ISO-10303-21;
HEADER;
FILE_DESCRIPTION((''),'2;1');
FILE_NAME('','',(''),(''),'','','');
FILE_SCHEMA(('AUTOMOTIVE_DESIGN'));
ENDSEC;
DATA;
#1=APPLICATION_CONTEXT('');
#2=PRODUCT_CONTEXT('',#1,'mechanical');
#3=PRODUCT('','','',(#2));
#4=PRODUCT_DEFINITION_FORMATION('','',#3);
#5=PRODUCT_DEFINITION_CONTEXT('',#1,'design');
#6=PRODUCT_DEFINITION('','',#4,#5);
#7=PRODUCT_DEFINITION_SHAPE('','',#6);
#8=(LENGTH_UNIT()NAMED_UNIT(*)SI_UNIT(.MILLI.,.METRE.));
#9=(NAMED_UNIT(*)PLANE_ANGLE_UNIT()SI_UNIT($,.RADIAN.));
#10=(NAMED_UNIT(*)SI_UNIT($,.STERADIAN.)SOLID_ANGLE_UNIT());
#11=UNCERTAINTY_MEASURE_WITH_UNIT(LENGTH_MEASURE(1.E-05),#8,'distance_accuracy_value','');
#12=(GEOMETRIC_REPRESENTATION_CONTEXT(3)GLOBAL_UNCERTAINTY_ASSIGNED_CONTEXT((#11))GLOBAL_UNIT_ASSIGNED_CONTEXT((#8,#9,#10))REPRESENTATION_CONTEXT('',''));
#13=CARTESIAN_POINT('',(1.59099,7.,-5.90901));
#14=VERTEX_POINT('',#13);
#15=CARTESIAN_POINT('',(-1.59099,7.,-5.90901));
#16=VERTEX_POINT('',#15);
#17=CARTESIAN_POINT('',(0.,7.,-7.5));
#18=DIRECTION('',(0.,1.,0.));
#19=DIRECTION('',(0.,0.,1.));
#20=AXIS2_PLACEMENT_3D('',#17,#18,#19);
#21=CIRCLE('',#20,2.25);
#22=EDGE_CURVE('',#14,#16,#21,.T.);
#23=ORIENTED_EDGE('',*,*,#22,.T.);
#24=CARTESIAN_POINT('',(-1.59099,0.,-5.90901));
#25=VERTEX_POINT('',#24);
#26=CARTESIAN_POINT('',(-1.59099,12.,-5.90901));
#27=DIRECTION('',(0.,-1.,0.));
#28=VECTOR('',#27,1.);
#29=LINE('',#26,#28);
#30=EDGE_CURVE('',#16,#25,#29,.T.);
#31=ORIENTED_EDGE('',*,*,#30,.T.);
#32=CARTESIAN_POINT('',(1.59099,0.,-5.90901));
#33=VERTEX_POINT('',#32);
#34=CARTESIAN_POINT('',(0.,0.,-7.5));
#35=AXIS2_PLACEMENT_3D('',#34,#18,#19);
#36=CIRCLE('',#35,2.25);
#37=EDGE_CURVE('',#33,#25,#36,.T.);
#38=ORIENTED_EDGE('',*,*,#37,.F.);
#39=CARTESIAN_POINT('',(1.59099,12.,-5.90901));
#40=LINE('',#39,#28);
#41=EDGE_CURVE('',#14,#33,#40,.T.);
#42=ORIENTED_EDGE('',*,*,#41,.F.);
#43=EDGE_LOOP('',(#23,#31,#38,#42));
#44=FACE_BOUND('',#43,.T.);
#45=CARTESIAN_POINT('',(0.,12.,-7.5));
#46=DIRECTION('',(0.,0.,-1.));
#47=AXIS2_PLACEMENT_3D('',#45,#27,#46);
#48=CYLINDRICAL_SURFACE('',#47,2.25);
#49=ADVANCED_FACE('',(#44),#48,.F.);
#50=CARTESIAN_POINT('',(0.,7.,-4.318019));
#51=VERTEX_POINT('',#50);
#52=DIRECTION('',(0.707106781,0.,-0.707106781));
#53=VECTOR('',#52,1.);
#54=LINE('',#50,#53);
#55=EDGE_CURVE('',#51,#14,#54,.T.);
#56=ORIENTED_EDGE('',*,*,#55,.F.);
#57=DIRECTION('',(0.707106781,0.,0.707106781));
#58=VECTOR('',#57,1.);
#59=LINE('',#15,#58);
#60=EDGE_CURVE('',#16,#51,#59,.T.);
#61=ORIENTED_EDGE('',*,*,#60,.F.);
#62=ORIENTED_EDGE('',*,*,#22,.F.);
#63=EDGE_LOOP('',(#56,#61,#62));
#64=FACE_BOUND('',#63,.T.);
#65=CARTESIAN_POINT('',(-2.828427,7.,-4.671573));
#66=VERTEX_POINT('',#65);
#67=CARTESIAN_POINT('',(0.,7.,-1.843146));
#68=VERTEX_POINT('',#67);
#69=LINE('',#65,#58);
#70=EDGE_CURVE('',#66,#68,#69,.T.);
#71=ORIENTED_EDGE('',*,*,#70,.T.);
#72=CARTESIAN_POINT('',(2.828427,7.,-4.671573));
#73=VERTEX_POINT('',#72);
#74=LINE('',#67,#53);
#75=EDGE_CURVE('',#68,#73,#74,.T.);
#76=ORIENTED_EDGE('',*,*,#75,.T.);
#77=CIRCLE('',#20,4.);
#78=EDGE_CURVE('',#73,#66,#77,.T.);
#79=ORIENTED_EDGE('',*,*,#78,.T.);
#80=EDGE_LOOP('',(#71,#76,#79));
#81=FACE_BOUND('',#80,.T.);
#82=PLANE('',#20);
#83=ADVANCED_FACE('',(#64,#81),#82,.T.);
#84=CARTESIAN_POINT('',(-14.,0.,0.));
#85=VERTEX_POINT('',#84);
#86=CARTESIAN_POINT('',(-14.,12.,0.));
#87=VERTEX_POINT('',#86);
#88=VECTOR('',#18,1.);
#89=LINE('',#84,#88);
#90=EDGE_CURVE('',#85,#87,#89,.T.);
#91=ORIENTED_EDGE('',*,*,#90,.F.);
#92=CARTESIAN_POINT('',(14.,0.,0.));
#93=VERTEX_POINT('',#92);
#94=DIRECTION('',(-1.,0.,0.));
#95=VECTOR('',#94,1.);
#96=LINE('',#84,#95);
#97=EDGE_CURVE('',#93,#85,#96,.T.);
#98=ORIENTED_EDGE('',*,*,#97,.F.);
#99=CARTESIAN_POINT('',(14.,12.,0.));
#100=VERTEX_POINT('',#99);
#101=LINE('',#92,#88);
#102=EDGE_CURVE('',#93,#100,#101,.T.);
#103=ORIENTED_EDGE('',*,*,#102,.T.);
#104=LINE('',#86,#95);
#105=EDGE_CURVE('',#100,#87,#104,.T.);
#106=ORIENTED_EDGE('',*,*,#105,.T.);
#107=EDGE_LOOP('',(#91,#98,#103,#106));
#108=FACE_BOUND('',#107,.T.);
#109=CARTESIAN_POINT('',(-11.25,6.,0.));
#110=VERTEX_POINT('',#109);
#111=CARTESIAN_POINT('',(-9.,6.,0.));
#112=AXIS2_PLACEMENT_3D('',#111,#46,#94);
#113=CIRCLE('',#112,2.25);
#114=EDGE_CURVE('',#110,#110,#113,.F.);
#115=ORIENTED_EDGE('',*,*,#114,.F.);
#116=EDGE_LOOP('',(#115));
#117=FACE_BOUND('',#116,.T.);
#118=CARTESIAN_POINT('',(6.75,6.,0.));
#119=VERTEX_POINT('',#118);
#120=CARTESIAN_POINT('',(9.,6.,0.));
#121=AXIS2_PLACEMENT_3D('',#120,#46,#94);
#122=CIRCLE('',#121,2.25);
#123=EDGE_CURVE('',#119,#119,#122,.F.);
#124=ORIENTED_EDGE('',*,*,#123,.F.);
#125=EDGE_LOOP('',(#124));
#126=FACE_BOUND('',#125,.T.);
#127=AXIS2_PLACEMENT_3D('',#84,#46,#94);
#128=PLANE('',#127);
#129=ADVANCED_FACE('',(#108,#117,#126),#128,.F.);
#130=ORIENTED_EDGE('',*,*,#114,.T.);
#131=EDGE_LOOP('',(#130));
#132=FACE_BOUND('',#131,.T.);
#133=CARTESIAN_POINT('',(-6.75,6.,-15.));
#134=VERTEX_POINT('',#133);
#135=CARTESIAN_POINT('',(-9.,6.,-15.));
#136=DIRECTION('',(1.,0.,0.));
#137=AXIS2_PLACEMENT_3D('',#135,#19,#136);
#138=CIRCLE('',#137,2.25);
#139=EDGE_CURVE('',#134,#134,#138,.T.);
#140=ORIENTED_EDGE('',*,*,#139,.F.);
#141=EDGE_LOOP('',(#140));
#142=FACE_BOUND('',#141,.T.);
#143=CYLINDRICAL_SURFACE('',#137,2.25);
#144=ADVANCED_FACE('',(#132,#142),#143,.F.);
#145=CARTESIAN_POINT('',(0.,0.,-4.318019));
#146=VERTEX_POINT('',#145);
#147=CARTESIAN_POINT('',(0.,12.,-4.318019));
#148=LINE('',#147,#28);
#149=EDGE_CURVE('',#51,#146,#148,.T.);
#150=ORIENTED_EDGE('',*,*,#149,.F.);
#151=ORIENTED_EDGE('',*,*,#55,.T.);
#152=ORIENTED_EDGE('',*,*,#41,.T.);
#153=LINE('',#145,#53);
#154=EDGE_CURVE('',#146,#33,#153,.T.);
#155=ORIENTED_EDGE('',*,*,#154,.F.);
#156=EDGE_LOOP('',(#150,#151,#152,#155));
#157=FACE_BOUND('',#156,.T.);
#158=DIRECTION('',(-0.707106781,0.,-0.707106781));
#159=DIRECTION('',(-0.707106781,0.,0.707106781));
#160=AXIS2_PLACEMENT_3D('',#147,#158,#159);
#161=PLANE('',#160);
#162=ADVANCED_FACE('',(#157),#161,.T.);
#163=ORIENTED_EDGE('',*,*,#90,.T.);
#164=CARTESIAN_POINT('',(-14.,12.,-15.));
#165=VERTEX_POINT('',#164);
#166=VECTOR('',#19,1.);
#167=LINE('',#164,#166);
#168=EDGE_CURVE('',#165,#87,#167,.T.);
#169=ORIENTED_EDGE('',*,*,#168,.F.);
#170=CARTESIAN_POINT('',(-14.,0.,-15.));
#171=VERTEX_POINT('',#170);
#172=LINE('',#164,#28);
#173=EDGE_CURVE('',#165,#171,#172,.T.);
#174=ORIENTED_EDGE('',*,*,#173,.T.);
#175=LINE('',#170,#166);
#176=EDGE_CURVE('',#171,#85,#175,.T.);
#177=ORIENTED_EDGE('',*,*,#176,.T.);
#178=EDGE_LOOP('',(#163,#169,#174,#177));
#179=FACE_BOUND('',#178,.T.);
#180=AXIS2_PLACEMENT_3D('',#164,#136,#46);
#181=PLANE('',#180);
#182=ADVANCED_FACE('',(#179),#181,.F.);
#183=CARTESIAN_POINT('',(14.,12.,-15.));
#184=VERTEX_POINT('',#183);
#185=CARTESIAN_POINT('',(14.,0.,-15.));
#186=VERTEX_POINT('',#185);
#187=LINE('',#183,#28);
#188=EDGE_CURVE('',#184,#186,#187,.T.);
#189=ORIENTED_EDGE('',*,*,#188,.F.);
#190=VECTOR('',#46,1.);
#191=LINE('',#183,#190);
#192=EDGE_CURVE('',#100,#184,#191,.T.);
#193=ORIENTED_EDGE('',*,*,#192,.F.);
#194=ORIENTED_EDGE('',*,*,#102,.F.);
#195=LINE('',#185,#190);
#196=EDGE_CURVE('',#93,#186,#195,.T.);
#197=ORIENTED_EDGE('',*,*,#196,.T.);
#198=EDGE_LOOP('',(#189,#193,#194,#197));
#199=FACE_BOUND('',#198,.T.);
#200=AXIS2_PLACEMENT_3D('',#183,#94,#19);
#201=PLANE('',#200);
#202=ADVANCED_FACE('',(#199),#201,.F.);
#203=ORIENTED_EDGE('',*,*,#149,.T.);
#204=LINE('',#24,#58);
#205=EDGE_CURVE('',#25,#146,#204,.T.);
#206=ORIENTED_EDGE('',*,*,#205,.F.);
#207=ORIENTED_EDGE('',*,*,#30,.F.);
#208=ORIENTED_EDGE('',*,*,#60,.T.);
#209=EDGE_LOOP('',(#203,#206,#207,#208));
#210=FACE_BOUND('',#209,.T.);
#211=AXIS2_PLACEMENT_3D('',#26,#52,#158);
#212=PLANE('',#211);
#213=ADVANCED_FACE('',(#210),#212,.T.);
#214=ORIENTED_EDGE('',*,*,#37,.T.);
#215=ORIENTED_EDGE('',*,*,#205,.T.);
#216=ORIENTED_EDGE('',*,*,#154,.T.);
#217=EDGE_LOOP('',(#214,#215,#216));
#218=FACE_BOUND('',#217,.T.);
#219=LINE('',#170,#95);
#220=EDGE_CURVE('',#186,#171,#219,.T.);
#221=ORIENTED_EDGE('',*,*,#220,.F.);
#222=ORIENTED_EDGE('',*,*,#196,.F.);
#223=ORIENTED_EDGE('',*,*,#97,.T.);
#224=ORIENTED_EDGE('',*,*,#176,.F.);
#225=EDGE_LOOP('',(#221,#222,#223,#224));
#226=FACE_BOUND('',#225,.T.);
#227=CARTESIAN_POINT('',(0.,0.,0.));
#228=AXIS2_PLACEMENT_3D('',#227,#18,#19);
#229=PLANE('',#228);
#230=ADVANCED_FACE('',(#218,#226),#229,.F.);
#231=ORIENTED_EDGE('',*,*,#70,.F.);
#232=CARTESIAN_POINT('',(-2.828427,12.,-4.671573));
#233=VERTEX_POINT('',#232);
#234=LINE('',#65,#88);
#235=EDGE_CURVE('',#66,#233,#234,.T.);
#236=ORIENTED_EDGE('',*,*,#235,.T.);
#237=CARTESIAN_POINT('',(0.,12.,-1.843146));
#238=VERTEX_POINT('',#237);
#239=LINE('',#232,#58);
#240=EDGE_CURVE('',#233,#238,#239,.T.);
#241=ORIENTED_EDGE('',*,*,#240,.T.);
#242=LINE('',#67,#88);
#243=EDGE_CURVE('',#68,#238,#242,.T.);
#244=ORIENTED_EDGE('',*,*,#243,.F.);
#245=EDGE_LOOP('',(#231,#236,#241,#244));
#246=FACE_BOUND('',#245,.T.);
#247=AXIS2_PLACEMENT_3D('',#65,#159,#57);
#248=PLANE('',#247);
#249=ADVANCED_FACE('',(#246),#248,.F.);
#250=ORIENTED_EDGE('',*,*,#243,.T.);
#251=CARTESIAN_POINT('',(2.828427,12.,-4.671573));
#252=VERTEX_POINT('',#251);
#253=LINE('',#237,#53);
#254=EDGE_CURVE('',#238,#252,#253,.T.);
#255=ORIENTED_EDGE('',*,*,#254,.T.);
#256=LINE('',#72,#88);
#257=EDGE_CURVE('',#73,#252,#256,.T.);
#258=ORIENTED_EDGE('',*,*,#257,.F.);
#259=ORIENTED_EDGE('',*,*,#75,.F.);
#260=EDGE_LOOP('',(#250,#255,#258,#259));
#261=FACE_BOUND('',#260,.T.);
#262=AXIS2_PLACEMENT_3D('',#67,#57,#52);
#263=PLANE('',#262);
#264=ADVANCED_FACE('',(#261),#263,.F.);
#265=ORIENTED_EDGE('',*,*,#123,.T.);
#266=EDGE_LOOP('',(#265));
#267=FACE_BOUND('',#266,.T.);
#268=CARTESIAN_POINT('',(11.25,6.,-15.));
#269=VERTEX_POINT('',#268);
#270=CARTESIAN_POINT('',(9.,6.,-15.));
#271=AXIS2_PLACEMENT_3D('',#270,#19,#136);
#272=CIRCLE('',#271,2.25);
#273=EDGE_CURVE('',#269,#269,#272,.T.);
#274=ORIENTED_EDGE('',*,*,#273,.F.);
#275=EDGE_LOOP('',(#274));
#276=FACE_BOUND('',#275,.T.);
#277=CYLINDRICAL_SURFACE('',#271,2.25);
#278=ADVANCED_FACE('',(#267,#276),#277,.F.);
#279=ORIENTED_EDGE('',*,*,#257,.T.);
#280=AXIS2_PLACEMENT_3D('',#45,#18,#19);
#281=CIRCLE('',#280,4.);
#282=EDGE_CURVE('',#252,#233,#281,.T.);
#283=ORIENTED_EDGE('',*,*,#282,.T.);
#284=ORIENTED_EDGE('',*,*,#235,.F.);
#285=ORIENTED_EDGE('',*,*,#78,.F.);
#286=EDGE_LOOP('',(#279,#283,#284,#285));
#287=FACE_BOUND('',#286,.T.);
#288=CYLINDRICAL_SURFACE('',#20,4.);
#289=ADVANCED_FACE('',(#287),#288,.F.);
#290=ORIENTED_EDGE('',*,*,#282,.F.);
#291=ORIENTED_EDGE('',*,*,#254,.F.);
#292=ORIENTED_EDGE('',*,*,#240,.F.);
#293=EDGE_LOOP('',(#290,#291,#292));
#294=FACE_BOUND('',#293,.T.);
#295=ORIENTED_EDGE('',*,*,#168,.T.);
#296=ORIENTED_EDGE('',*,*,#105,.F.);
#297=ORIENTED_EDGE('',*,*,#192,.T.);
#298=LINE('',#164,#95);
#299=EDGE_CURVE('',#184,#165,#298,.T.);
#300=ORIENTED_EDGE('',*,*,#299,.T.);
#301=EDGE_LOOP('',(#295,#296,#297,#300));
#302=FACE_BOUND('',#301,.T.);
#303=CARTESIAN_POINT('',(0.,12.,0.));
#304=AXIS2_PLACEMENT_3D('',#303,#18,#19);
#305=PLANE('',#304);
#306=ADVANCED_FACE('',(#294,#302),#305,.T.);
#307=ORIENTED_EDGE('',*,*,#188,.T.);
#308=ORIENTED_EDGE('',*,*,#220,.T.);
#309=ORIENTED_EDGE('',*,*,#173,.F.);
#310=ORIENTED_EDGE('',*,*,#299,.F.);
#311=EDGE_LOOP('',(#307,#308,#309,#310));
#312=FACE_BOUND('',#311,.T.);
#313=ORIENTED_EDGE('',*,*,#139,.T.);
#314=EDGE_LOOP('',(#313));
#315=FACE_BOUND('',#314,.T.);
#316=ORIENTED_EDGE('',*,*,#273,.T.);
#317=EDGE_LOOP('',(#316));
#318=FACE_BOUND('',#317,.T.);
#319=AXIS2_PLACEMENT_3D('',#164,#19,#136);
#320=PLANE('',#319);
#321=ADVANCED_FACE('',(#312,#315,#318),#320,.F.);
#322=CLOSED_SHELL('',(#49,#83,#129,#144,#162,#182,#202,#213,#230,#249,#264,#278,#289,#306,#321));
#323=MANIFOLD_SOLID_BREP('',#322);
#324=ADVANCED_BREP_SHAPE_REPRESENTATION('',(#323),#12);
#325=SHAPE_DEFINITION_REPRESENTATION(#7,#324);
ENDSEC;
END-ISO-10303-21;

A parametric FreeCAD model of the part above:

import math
import FreeCAD as App
import Part
import Sketcher
from FreeCAD import Vector
Q = App.Units.Quantity

doc = App.newDocument("Part")
body = doc.addObject("PartDesign::Body", "Body")

# Sketch on XZ plane
sketch1 = doc.addObject("Sketcher::SketchObject", "Sketch")
body.addObject(sketch1)
sketch1.AttachmentSupport = (doc.XZ_Plane, [""])
sketch1.MapMode = "FlatFace"
sketch1.addGeometry(Part.LineSegment(Vector(-14, -15, 0), Vector(-14, 15, 0)), False)
sketch1.addGeometry(Part.LineSegment(Vector(-14, 15, 0), Vector(14, 15, 0)), False)
sketch1.addGeometry(Part.LineSegment(Vector(14, 15, 0), Vector(14, -15, 0)), False)
sketch1.addGeometry(Part.LineSegment(Vector(14, -15, 0), Vector(-14, -15, 0)), False)
sketch1.addGeometry(Part.LineSegment(Vector(0, 10.7, 0), Vector(-1.6, 9.1, 0)), False)
sketch1.addGeometry(Part.ArcOfCircle(Part.Circle(Vector(0, 7.5, 0), Vector(0, 0, 1), 2.2), math.radians(135), math.radians(405)), False)
sketch1.addGeometry(Part.LineSegment(Vector(1.6, 9.1, 0), Vector(0, 10.7, 0)), False)
sketch1.addGeometry(Part.LineSegment(Vector(0, -4.3, 0), Vector(-1.6, -5.9, 0)), False)
sketch1.addGeometry(Part.ArcOfCircle(Part.Circle(Vector(0, -7.5, 0), Vector(0, 0, 1), 2.2), math.radians(135), math.radians(405)), False)
sketch1.addGeometry(Part.LineSegment(Vector(1.6, -5.9, 0), Vector(0, -4.3, 0)), False)
sketch1.addConstraint(Sketcher.Constraint("Coincident", 0, 2, 1, 1))
sketch1.addConstraint(Sketcher.Constraint("Coincident", 1, 2, 2, 1))
sketch1.addConstraint(Sketcher.Constraint("Coincident", 2, 2, 3, 1))
sketch1.addConstraint(Sketcher.Constraint("Coincident", 3, 2, 0, 1))
sketch1.addConstraint(Sketcher.Constraint("Tangent", 4, 2, 5, 1))
sketch1.addConstraint(Sketcher.Constraint("Tangent", 5, 2, 6, 1))
sketch1.addConstraint(Sketcher.Constraint("Coincident", 6, 2, 4, 1))
sketch1.addConstraint(Sketcher.Constraint("Tangent", 7, 2, 8, 1))
sketch1.addConstraint(Sketcher.Constraint("Tangent", 8, 2, 9, 1))
sketch1.addConstraint(Sketcher.Constraint("Coincident", 9, 2, 7, 1))
sketch1.addConstraint(Sketcher.Constraint("Vertical", 0))
sketch1.addConstraint(Sketcher.Constraint("Horizontal", 1))
sketch1.addConstraint(Sketcher.Constraint("Vertical", 2))
sketch1.addConstraint(Sketcher.Constraint("Horizontal", 3))
sketch1.addConstraint(Sketcher.Constraint("Equal", 5, 8))
sketch1.addConstraint(Sketcher.Constraint("Symmetric", 5, 3, 8, 3, -1, 1))
sketch1.addConstraint(Sketcher.Constraint("Symmetric", 0, 2, 2, 2, -1, 1))
sketch1.addConstraint(Sketcher.Constraint("Symmetric", 4, 2, 5, 2, -2))
sketch1.addConstraint(Sketcher.Constraint("PointOnObject", 9, 2, -2))
sketch1.addConstraint(Sketcher.Constraint("Perpendicular", 4, 6))
sketch1.addConstraint(Sketcher.Constraint("Perpendicular", 6, 7))
sketch1.addConstraint(Sketcher.Constraint("DistanceX", 1, 1, 1, 2, Q("28 mm")))
sketch1.addConstraint(Sketcher.Constraint("DistanceY", 0, 1, 0, 2, Q("30 mm")))
sketch1.addConstraint(Sketcher.Constraint("Radius", 5, Q("2.25 mm")))
sketch1.addConstraint(Sketcher.Constraint("DistanceY", 8, 3, 5, 3, Q("15 mm")))
pad1 = doc.addObject("PartDesign::Pad", "Pad")
body.addObject(pad1)
pad1.Profile = sketch1
pad1.Length = 12
pad1.Reversed = True

# Sketch on XY plane
sketch2 = doc.addObject("Sketcher::SketchObject", "Sketch001")
body.addObject(sketch2)
sketch2.AttachmentSupport = (doc.XY_Plane, [""])
sketch2.MapMode = "FlatFace"
sketch2.AttachmentOffset = App.Placement(Vector(0, 0, 15), App.Rotation())
sketch2.addGeometry(Part.Circle(Vector(-9, 6, 0), Vector(0, 0, 1), 2.2), False)
sketch2.addGeometry(Part.Circle(Vector(9, 6, 0), Vector(0, 0, 1), 2.2), False)
sketch2.addConstraint(Sketcher.Constraint("Equal", 0, 1))
sketch2.addConstraint(Sketcher.Constraint("Symmetric", 0, 3, 1, 3, -2))
sketch2.addConstraint(Sketcher.Constraint("Diameter", 0, Q("4.5 mm")))
sketch2.addConstraint(Sketcher.Constraint("DistanceX", 0, 3, -1, 1, Q("9 mm")))
sketch2.addConstraint(Sketcher.Constraint("DistanceY", -1, 1, 0, 3, Q("6 mm")))
pocket1 = doc.addObject("PartDesign::Pocket", "Pocket")
body.addObject(pocket1)
pocket1.Profile = sketch2
pocket1.Type = "ThroughAll"

# Sketch on XZ plane
sketch3 = doc.addObject("Sketcher::SketchObject", "Sketch002")
body.addObject(sketch3)
sketch3.AttachmentSupport = (doc.XZ_Plane, [""])
sketch3.MapMode = "FlatFace"
sketch3.AttachmentOffset = App.Placement(Vector(0, 0, -12), App.Rotation())
sketch3.addGeometry(Part.LineSegment(Vector(-14, 0, 0), Vector(-14, 15, 0)), False)
sketch3.addGeometry(Part.LineSegment(Vector(-14, 15, 0), Vector(14, 15, 0)), False)
sketch3.addGeometry(Part.LineSegment(Vector(14, 15, 0), Vector(14, 0, 0)), False)
sketch3.addGeometry(Part.LineSegment(Vector(14, 0, 0), Vector(-14, 0, 0)), False)
sketch3.addConstraint(Sketcher.Constraint("Coincident", 0, 2, 1, 1))
sketch3.addConstraint(Sketcher.Constraint("Coincident", 1, 2, 2, 1))
sketch3.addConstraint(Sketcher.Constraint("Coincident", 2, 2, 3, 1))
sketch3.addConstraint(Sketcher.Constraint("Coincident", 3, 2, 0, 1))
sketch3.addConstraint(Sketcher.Constraint("Vertical", 0))
sketch3.addConstraint(Sketcher.Constraint("Horizontal", 1))
sketch3.addConstraint(Sketcher.Constraint("Vertical", 2))
sketch3.addConstraint(Sketcher.Constraint("Horizontal", 3))
sketch3.addConstraint(Sketcher.Constraint("Symmetric", 2, 2, 3, 2, -1, 1))
sketch3.addConstraint(Sketcher.Constraint("DistanceX", 1, 1, 1, 2, Q("28 mm")))
sketch3.addConstraint(Sketcher.Constraint("DistanceY", 0, 1, 0, 2, Q("15 mm")))
pocket2 = doc.addObject("PartDesign::Pocket", "Pocket001")
body.addObject(pocket2)
pocket2.Profile = sketch3
pocket2.Type = "ThroughAll"
pocket2.Reversed = True

# Sketch on XZ plane
sketch4 = doc.addObject("Sketcher::SketchObject", "Sketch003")
body.addObject(sketch4)
sketch4.AttachmentSupport = (doc.XZ_Plane, [""])
sketch4.MapMode = "FlatFace"
sketch4.AttachmentOffset = App.Placement(Vector(0, 0, -12), App.Rotation())
sketch4.addGeometry(Part.LineSegment(Vector(-2.8, -4.7, 0), Vector(0, -1.8, 0)), False)
sketch4.addGeometry(Part.LineSegment(Vector(0, -1.8, 0), Vector(2.8, -4.7, 0)), False)
sketch4.addGeometry(Part.ArcOfCircle(Part.Circle(Vector(0, -7.5, 0), Vector(0, 0, 1), 4), math.radians(135), math.radians(405)), False)
sketch4.addConstraint(Sketcher.Constraint("Coincident", 0, 2, 1, 1))
sketch4.addConstraint(Sketcher.Constraint("Tangent", 1, 2, 2, 2))
sketch4.addConstraint(Sketcher.Constraint("Tangent", 2, 1, 0, 1))
sketch4.addConstraint(Sketcher.Constraint("Symmetric", 1, 2, 2, 1, -2))
sketch4.addConstraint(Sketcher.Constraint("Perpendicular", 0, 1))
sketch4.addConstraint(Sketcher.Constraint("Radius", 2, Q("4 mm")))
sketch4.addConstraint(Sketcher.Constraint("DistanceY", 2, 3, -1, 1, Q("7.5 mm")))
pocket3 = doc.addObject("PartDesign::Pocket", "Pocket002")
body.addObject(pocket3)
pocket3.Profile = sketch4
pocket3.Length = 5
pocket3.Reversed = True

doc.recompute()
